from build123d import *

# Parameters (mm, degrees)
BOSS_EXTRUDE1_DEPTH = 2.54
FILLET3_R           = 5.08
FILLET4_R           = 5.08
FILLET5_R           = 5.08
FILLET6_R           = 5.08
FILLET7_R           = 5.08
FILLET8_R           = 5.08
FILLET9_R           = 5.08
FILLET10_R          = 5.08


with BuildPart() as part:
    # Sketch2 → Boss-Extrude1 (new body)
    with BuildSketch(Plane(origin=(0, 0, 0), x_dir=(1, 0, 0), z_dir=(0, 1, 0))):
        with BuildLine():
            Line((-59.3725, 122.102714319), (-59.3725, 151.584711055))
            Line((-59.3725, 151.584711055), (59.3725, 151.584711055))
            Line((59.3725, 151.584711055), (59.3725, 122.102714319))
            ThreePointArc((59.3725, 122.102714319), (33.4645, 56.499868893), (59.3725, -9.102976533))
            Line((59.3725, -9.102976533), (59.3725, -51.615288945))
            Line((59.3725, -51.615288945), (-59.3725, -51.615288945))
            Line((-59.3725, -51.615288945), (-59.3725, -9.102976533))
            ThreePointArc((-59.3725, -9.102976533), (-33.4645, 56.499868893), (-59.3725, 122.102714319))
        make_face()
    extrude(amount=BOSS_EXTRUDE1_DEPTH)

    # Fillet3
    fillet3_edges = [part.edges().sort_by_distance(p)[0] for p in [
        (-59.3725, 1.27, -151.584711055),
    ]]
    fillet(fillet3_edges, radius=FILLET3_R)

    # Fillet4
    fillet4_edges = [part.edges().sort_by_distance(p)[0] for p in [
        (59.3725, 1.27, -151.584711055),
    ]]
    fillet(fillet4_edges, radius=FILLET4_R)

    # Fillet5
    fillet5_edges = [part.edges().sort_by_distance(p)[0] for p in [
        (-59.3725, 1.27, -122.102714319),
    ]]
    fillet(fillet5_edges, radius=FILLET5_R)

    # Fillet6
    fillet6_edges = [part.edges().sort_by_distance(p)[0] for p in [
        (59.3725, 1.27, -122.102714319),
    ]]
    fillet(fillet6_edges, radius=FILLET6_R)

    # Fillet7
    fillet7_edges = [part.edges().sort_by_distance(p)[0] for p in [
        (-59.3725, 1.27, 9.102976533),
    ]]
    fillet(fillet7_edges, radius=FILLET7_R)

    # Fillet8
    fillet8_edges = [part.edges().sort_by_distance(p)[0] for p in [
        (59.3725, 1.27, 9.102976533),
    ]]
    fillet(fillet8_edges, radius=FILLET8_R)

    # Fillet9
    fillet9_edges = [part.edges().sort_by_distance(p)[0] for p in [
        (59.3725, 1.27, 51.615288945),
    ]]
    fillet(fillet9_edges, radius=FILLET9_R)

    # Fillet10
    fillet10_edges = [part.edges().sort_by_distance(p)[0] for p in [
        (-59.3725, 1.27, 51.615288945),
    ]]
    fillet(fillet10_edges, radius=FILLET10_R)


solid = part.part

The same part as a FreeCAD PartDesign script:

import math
import FreeCAD as App
import Part
import Sketcher
from FreeCAD import Vector
Q = App.Units.Quantity


def edges_at(feature, points):
    """Names of the edges that pass closest to the given points."""
    edges = feature.Shape.Edges
    near = lambda p: min(range(len(edges)), key=lambda i: edges[i].distToShape(Part.Vertex(*p))[0])
    return sorted({f"Edge{near(p) + 1}" for p in points})

doc = App.newDocument("Part")
body = doc.addObject("PartDesign::Body", "Body")

# Sketch on XZ plane
sketch1 = body.newObject("Sketcher::SketchObject", "Sketch")
sketch1.AttachmentSupport = (doc.getObject("XZ_Plane"), [""])
sketch1.MapMode = "FlatFace"
sketch1.addGeometry([
    Part.LineSegment(Vector(-59, -152, 0), Vector(-59, -122, 0)),  # 0
    Part.ArcOfCircle(Part.Circle(Vector(-129, -56, 0), Vector(0, 0, 1), 96), math.radians(-43), math.radians(43)),  # 1
    Part.LineSegment(Vector(-59, 9, 0), Vector(-59, 52, 0)),  # 2
    Part.LineSegment(Vector(-59, 52, 0), Vector(59, 52, 0)),  # 3
    Part.LineSegment(Vector(59, 52, 0), Vector(59, 9, 0)),  # 4
    Part.ArcOfCircle(Part.Circle(Vector(129, -56, 0), Vector(0, 0, 1), 96), math.radians(137), math.radians(223)),  # 5
    Part.LineSegment(Vector(59, -122, 0), Vector(59, -152, 0)),  # 6
    Part.LineSegment(Vector(59, -152, 0), Vector(-59, -152, 0)),  # 7
], False)
sketch1.addConstraint([
    Sketcher.Constraint("Coincident", 0, 2, 1, 1),
    Sketcher.Constraint("Coincident", 1, 2, 2, 1),
    Sketcher.Constraint("Coincident", 2, 2, 3, 1),
    Sketcher.Constraint("Coincident", 3, 2, 4, 1),
    Sketcher.Constraint("Coincident", 4, 2, 5, 1),
    Sketcher.Constraint("Coincident", 5, 2, 6, 1),
    Sketcher.Constraint("Coincident", 6, 2, 7, 1),
    Sketcher.Constraint("Coincident", 7, 2, 0, 1),
    Sketcher.Constraint("Vertical", 0),
    Sketcher.Constraint("Vertical", 2),
    Sketcher.Constraint("Horizontal", 3),
    Sketcher.Constraint("Vertical", 4),
    Sketcher.Constraint("Vertical", 6),
    Sketcher.Constraint("Horizontal", 7),
    Sketcher.Constraint("Equal", 1, 5),
    Sketcher.Constraint("Symmetric", 1, 3, 5, 3, -2),
    Sketcher.Constraint("Horizontal", 1, 2, 4, 2),
    Sketcher.Constraint("Horizontal", 0, 2, 5, 2),
    Sketcher.Constraint("Vertical", 0, 2, 1, 2),
    Sketcher.Constraint("Radius", 1, Q("3.78 in")),
    Sketcher.Constraint("DistanceX", 3, 1, 3, 2, Q("4.675 in")),
    Sketcher.Constraint("DistanceX", 1, 3, 0, 2, Q("2.76 in")),
    Sketcher.Constraint("DistanceY", 0, 1, 0, 2, 29.481997),
    Sketcher.Constraint("DistanceY", 2, 1, 2, 2, 42.512312),
    Sketcher.Constraint("DistanceY", 1, 3, -1, 1, 56.499869),
])
pad1 = body.newObject("PartDesign::Pad", "Pad")
pad1.Profile = sketch1
pad1.Length = Q("0.1 in")
pad1.Reversed = True
doc.recompute()

fillet = body.newObject("PartDesign::Fillet", "Fillet")
fillet.Base = (pad1, edges_at(pad1, [(-59.373, 1.27, -151.585)]))
fillet.Radius = Q("0.2 in")
doc.recompute()

fillet2 = body.newObject("PartDesign::Fillet", "Fillet001")
fillet2.Base = (fillet, edges_at(fillet, [(59.373, 1.27, -151.585)]))
fillet2.Radius = Q("0.2 in")
doc.recompute()

fillet3 = body.newObject("PartDesign::Fillet", "Fillet002")
fillet3.Base = (fillet2, edges_at(fillet2, [(-59.373, 1.27, -122.103)]))
fillet3.Radius = Q("0.2 in")
doc.recompute()

fillet4 = body.newObject("PartDesign::Fillet", "Fillet003")
fillet4.Base = (fillet3, edges_at(fillet3, [(59.373, 1.27, -122.103)]))
fillet4.Radius = Q("0.2 in")
doc.recompute()

fillet5 = body.newObject("PartDesign::Fillet", "Fillet004")
fillet5.Base = (fillet4, edges_at(fillet4, [(-59.373, 1.27, 9.103)]))
fillet5.Radius = Q("0.2 in")
doc.recompute()

fillet6 = body.newObject("PartDesign::Fillet", "Fillet005")
fillet6.Base = (fillet5, edges_at(fillet5, [(59.373, 1.27, 9.103)]))
fillet6.Radius = Q("0.2 in")
doc.recompute()

fillet7 = body.newObject("PartDesign::Fillet", "Fillet006")
fillet7.Base = (fillet6, edges_at(fillet6, [(59.373, 1.27, 51.615)]))
fillet7.Radius = Q("0.2 in")
doc.recompute()

fillet8 = body.newObject("PartDesign::Fillet", "Fillet007")
fillet8.Base = (fillet7, edges_at(fillet7, [(-59.373, 1.27, 51.615)]))
fillet8.Radius = Q("0.2 in")

doc.recompute()
